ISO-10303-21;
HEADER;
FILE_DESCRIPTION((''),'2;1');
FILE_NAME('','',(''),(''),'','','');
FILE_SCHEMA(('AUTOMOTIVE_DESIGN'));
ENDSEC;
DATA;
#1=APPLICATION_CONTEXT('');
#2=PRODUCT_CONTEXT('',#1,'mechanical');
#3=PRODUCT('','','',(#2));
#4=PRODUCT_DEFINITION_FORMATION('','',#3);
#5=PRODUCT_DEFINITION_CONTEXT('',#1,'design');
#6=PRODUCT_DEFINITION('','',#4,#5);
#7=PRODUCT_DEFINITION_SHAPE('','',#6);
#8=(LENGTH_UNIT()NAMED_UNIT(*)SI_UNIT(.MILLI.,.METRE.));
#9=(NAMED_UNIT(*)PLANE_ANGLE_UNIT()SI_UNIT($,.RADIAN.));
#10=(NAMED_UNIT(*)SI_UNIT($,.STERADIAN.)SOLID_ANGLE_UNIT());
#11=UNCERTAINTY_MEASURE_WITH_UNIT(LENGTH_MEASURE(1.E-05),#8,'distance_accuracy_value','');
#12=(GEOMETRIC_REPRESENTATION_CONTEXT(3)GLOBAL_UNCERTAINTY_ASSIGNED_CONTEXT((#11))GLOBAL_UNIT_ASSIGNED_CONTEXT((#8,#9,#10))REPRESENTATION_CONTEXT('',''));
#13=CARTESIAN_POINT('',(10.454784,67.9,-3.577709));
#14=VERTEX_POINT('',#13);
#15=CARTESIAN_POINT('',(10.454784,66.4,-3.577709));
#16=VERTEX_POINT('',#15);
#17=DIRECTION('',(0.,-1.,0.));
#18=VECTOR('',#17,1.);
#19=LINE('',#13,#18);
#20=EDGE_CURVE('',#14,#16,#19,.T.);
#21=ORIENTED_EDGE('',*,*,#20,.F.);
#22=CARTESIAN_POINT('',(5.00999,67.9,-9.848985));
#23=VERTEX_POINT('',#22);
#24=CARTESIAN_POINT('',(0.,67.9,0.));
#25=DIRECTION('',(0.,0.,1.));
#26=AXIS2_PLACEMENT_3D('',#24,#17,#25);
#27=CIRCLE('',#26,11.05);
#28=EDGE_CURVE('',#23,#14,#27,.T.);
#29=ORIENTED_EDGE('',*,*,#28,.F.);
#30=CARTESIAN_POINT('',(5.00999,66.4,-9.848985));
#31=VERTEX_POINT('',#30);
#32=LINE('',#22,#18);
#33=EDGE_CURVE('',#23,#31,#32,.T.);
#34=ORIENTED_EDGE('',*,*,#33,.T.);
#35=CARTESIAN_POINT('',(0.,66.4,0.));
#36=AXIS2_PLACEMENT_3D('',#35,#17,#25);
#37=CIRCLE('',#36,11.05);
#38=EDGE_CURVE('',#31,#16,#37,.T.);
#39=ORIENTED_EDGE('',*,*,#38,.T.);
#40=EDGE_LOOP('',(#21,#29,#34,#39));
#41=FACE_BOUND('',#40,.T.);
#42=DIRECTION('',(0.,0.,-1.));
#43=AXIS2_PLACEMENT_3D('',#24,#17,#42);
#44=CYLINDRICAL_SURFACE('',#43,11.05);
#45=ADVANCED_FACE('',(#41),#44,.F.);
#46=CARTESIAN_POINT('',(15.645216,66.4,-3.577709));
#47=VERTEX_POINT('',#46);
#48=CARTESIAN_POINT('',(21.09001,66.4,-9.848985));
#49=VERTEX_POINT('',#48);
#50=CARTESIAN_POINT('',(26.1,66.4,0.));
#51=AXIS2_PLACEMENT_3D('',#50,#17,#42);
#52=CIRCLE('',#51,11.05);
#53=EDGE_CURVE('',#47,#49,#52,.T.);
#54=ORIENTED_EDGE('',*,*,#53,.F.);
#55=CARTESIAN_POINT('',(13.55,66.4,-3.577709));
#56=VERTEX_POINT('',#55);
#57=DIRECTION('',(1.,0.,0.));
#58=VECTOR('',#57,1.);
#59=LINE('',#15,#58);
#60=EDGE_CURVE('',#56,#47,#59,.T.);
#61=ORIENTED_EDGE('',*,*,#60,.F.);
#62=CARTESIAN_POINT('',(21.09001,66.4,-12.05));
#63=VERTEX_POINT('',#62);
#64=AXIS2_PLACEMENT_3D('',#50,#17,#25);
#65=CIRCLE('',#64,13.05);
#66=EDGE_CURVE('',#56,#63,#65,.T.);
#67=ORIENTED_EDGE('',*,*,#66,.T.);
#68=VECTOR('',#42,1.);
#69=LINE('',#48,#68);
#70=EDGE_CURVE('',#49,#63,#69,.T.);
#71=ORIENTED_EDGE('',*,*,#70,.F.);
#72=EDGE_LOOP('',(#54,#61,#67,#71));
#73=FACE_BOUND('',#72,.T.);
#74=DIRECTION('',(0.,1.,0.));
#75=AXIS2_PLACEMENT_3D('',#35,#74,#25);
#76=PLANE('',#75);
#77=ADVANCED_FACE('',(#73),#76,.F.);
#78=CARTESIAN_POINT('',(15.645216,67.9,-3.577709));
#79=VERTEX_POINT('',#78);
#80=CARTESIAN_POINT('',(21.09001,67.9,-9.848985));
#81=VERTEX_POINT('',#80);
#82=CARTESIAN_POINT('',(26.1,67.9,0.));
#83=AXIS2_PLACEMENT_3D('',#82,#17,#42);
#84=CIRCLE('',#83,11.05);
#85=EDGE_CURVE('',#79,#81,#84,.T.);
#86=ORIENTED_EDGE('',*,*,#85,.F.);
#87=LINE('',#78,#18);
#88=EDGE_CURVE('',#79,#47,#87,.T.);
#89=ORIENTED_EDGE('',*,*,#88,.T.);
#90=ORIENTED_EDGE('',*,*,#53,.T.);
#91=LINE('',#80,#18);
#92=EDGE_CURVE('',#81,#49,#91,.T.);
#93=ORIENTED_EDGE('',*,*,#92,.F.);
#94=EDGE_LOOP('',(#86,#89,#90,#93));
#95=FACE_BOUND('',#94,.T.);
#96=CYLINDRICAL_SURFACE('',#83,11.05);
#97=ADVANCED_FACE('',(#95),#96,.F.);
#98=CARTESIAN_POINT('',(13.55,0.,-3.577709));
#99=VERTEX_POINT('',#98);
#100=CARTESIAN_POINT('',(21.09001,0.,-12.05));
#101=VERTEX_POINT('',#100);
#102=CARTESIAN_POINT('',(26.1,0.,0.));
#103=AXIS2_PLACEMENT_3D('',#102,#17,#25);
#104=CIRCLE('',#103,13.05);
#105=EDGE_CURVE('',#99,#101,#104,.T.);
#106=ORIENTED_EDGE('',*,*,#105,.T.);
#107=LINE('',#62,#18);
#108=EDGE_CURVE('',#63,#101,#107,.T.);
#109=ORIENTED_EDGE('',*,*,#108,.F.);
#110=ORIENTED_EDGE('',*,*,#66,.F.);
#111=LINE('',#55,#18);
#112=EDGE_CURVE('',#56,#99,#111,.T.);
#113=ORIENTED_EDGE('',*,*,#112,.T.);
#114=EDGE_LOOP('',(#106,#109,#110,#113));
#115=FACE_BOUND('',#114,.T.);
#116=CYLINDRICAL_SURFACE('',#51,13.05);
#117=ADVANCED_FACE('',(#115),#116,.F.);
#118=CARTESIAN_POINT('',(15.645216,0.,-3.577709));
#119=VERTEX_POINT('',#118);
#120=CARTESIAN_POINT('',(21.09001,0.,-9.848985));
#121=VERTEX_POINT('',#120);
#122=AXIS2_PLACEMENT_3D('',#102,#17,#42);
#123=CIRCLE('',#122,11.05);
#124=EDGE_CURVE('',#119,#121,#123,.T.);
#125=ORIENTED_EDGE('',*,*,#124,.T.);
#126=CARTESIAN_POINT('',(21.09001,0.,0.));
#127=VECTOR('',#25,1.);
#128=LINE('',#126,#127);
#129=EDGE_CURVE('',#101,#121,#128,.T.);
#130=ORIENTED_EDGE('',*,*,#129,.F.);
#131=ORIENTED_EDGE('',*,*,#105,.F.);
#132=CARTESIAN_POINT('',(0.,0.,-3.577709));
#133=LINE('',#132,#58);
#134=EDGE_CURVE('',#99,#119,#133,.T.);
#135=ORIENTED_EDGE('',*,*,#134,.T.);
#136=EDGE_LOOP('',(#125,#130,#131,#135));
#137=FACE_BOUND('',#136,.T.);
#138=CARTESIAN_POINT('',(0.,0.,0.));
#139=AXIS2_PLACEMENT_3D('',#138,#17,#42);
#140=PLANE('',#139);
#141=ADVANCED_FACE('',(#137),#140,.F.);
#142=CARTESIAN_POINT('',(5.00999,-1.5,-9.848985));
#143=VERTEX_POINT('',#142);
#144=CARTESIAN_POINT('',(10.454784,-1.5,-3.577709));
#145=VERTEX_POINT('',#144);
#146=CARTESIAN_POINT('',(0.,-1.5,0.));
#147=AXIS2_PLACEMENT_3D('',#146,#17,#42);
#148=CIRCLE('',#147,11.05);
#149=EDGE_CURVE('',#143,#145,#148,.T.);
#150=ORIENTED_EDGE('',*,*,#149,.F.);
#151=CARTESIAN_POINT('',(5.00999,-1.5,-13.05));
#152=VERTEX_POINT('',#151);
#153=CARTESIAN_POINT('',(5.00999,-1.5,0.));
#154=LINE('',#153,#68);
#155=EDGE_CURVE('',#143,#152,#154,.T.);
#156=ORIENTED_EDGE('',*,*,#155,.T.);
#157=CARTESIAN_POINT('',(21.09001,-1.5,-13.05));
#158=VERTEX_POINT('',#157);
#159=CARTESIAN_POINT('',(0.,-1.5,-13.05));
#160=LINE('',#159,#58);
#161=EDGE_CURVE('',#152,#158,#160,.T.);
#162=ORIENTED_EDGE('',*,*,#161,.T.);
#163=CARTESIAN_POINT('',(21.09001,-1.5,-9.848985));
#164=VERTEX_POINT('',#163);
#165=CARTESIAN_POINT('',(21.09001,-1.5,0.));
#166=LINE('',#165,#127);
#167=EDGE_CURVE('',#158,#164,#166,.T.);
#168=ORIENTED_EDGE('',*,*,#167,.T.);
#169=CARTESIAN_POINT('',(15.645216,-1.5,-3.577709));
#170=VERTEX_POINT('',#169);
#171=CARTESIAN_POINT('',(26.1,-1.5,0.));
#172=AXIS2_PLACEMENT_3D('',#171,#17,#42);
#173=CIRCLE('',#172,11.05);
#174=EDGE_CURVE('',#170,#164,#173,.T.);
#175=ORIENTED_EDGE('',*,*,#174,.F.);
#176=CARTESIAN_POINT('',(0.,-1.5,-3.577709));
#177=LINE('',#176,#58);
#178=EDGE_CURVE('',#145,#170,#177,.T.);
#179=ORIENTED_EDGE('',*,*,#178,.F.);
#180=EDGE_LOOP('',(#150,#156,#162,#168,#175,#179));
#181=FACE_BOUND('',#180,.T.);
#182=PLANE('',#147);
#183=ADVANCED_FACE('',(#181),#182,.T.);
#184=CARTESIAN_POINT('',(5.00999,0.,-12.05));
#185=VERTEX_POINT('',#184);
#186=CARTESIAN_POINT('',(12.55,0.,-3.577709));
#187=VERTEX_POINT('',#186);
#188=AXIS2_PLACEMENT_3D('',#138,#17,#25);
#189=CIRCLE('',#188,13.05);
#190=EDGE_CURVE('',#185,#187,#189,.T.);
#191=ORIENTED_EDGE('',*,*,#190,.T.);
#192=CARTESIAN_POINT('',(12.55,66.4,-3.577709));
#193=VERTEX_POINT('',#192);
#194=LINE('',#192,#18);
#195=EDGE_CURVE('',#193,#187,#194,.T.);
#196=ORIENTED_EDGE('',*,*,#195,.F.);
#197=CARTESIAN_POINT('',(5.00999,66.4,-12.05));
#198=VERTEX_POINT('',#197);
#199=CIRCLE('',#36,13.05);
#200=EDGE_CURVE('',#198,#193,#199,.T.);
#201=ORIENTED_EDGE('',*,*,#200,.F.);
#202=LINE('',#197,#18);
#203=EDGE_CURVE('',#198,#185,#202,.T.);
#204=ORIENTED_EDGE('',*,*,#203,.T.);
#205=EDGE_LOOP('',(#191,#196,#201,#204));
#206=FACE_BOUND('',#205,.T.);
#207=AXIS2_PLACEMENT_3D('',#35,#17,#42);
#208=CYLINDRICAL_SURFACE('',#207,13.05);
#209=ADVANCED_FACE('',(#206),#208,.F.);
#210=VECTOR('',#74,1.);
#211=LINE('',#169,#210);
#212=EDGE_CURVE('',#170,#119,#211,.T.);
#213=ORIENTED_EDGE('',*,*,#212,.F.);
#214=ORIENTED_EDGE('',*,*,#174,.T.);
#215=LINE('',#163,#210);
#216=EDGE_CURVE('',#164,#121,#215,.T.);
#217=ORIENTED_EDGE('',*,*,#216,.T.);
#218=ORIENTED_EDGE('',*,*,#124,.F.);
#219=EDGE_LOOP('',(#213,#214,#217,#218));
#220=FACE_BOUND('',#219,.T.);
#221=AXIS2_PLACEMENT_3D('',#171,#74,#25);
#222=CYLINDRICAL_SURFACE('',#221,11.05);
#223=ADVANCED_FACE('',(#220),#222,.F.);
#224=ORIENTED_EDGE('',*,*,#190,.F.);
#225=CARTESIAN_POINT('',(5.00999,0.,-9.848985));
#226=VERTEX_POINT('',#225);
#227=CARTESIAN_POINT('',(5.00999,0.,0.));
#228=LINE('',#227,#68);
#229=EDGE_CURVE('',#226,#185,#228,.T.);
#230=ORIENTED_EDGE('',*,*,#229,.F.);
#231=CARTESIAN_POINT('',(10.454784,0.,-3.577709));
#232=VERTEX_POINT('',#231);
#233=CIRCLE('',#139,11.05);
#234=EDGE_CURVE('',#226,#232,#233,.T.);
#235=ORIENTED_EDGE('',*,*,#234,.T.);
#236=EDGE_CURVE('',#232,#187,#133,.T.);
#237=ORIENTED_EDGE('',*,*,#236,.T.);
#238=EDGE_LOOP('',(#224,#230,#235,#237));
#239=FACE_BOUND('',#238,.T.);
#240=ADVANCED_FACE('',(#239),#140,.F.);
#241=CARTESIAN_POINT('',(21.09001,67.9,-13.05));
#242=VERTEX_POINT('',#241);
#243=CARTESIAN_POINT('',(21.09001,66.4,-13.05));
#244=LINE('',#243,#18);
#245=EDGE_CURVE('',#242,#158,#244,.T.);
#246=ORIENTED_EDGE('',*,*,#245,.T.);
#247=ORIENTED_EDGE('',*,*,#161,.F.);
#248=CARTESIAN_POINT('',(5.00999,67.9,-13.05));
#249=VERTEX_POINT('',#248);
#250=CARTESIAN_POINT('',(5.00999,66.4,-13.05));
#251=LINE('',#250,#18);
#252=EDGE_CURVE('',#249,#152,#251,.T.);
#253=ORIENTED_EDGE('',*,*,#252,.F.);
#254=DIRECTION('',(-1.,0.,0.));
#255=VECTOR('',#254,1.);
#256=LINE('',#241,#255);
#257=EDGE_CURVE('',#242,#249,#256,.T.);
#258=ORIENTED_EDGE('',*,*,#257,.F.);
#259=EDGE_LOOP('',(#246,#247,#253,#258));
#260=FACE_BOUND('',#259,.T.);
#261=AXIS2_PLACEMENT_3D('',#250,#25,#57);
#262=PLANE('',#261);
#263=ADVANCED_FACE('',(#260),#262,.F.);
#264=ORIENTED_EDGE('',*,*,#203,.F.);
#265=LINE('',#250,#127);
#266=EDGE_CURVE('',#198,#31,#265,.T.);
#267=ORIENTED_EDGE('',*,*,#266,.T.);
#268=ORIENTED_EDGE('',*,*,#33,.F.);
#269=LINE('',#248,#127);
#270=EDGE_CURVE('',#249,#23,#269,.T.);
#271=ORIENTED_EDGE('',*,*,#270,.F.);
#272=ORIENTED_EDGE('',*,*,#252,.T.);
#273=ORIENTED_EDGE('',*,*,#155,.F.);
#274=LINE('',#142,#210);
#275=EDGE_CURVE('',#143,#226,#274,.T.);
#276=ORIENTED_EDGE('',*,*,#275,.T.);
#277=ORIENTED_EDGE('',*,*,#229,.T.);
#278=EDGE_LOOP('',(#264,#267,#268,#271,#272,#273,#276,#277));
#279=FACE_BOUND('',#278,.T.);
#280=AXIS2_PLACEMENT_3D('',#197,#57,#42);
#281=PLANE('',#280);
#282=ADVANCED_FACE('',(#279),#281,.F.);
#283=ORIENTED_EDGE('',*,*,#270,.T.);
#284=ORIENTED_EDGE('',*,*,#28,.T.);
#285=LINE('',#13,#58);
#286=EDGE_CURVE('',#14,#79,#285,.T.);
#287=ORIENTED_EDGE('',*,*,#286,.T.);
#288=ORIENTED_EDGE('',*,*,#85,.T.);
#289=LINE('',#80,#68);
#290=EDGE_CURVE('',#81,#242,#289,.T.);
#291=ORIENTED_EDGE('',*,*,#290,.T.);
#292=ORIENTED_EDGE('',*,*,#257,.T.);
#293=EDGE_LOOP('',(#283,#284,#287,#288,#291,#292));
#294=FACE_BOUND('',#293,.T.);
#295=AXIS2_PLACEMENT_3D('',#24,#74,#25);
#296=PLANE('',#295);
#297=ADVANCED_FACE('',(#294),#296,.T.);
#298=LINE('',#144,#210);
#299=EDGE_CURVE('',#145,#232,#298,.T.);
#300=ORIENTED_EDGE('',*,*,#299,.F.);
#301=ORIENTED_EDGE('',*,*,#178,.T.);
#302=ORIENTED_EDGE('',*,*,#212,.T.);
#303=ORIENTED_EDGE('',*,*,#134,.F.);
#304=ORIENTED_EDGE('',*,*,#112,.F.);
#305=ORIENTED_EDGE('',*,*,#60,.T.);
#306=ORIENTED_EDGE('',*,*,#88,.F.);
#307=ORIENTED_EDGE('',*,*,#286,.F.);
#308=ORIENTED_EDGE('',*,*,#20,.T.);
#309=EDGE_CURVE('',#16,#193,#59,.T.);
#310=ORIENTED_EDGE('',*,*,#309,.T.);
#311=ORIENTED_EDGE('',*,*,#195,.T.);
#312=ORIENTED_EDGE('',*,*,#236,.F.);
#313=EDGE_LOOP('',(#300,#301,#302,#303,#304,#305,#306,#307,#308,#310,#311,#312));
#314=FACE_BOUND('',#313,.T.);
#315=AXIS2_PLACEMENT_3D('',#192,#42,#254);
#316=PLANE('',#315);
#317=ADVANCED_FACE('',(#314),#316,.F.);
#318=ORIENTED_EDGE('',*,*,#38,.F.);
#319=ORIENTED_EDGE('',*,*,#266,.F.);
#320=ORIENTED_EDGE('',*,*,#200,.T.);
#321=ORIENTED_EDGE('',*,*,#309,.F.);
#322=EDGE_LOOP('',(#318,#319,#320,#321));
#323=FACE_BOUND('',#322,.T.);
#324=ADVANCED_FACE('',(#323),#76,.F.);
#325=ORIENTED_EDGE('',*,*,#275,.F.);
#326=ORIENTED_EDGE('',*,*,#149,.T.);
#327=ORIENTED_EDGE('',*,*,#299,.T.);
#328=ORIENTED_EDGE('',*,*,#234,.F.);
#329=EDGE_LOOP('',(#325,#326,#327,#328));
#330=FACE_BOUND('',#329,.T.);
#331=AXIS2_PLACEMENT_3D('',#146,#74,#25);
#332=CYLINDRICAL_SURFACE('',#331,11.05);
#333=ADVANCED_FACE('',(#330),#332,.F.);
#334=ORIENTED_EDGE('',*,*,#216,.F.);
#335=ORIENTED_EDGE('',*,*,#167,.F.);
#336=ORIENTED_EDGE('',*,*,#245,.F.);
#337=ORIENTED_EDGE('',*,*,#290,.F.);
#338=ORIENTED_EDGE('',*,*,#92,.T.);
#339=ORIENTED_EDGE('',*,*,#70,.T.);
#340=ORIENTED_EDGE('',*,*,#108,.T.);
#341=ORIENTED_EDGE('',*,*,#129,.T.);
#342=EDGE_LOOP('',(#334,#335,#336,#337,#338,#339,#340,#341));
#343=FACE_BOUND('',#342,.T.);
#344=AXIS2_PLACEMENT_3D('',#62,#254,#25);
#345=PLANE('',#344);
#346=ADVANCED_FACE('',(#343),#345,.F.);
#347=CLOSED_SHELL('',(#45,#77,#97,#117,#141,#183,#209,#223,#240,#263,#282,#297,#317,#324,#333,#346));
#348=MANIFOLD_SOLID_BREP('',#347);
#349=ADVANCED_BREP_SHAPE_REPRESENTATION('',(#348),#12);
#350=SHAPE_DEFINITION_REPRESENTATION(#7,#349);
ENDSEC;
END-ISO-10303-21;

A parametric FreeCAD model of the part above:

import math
import FreeCAD as App
import Part
import Sketcher

V = App.Vector

doc = App.newDocument("Part")
body = doc.addObject("PartDesign::Body", "Body")

# Sketch on XZ plane
sketch1 = body.newObject("Sketcher::SketchObject", "Sketch")
sketch1.AttachmentSupport = (doc.getObject("XZ_Plane"), [""])
sketch1.MapMode = "FlatFace"
sketch1.addGeometry(Part.LineSegment(V(12.6, -3.6, 0), V(13.6, -3.6, 0)), False)
sketch1.addGeometry(Part.ArcOfCircle(Part.Circle(V(26.1, 0, 0), V(0, 0, 1), 13.1), math.radians(-164), math.radians(-113)), False)
sketch1.addGeometry(Part.LineSegment(V(21.1, -12.1, 0), V(21.1, -13.1, 0)), False)
sketch1.addGeometry(Part.LineSegment(V(21.1, -13.1, 0), V(5, -13.1, 0)), False)
sketch1.addGeometry(Part.LineSegment(V(5, -13.1, 0), V(5, -12.1, 0)), False)
sketch1.addGeometry(Part.ArcOfCircle(Part.Circle(V(0, 0, 0), V(0, 0, 1), 13.1), math.radians(-67), math.radians(-16)), False)
sketch1.addConstraint(Sketcher.Constraint("Coincident", 0, 2, 1, 1))
sketch1.addConstraint(Sketcher.Constraint("Coincident", 1, 2, 2, 1))
sketch1.addConstraint(Sketcher.Constraint("Coincident", 2, 2, 3, 1))
sketch1.addConstraint(Sketcher.Constraint("Coincident", 3, 2, 4, 1))
sketch1.addConstraint(Sketcher.Constraint("Coincident", 4, 2, 5, 1))
sketch1.addConstraint(Sketcher.Constraint("Coincident", 5, 2, 0, 1))
sketch1.addConstraint(Sketcher.Constraint("Horizontal", 0))
sketch1.addConstraint(Sketcher.Constraint("Vertical", 2))
sketch1.addConstraint(Sketcher.Constraint("Horizontal", 3))
sketch1.addConstraint(Sketcher.Constraint("Vertical", 4))
sketch1.addConstraint(Sketcher.Constraint("Coincident", 5, 3, -1, 1))
sketch1.addConstraint(Sketcher.Constraint("Equal", 1, 5))
sketch1.addConstraint(Sketcher.Constraint("PointOnObject", 1, 3, -1))
sketch1.addConstraint(Sketcher.Constraint("Horizontal", 1, 2, 4, 2))
sketch1.addConstraint(Sketcher.Constraint("Equal", 0, 2))
sketch1.addConstraint(Sketcher.Constraint("DistanceX", 0, 1, 0, 2, 1.0))
sketch1.addConstraint(Sketcher.Constraint("Radius", 1, 13.05))
sketch1.addConstraint(Sketcher.Constraint("DistanceX", -1, 1, 1, 3, 26.1))
sketch1.addConstraint(Sketcher.Constraint("DistanceY", 1, 2, -1, 1, 12.05))
pad1 = body.newObject("PartDesign::Pad", "Pad")
pad1.Profile = sketch1
pad1.Length = 66.4
pad1.Reversed = True

# Sketch on XZ plane
sketch2 = body.newObject("Sketcher::SketchObject", "Sketch001")
sketch2.AttachmentSupport = (doc.getObject("XZ_Plane"), [""])
sketch2.MapMode = "FlatFace"
sketch2.AttachmentOffset = App.Placement(V(0, 0, -66.4), App.Rotation())
sketch2.addGeometry(Part.LineSegment(V(5, -13.1, 0), V(5, -9.8, 0)), False)
sketch2.addGeometry(Part.ArcOfCircle(Part.Circle(V(0, 0, 0), V(0, 0, 1), 11), math.radians(-63), math.radians(-19)), False)
sketch2.addGeometry(Part.LineSegment(V(10.5, -3.6, 0), V(15.6, -3.6, 0)), False)
sketch2.addGeometry(Part.ArcOfCircle(Part.Circle(V(26.1, 0, 0), V(0, 0, 1), 11), math.radians(-161), math.radians(-117)), False)
sketch2.addGeometry(Part.LineSegment(V(21.1, -9.8, 0), V(21.1, -13.1, 0)), False)
sketch2.addGeometry(Part.LineSegment(V(21.1, -13.1, 0), V(5, -13.1, 0)), False)
sketch2.addConstraint(Sketcher.Constraint("Coincident", 0, 2, 1, 1))
sketch2.addConstraint(Sketcher.Constraint("Coincident", 1, 2, 2, 1))
sketch2.addConstraint(Sketcher.Constraint("Coincident", 2, 2, 3, 1))
sketch2.addConstraint(Sketcher.Constraint("Coincident", 3, 2, 4, 1))
sketch2.addConstraint(Sketcher.Constraint("Coincident", 4, 2, 5, 1))
sketch2.addConstraint(Sketcher.Constraint("Coincident", 5, 2, 0, 1))
sketch2.addConstraint(Sketcher.Constraint("Vertical", 0))
sketch2.addConstraint(Sketcher.Constraint("Horizontal", 2))
sketch2.addConstraint(Sketcher.Constraint("Vertical", 4))
sketch2.addConstraint(Sketcher.Constraint("Horizontal", 5))
sketch2.addConstraint(Sketcher.Constraint("Coincident", 1, 3, -1, 1))
sketch2.addConstraint(Sketcher.Constraint("Equal", 1, 3))
sketch2.addConstraint(Sketcher.Constraint("PointOnObject", 3, 3, -1))
sketch2.addConstraint(Sketcher.Constraint("Horizontal", 0, 2, 3, 2))
sketch2.addConstraint(Sketcher.Constraint("Radius", 1, 11.05))
sketch2.addConstraint(Sketcher.Constraint("DistanceX", -1, 1, 3, 3, 26.1))
sketch2.addConstraint(Sketcher.Constraint("DistanceY", 4, 2, -1, 1, 13.05))
sketch2.addConstraint(Sketcher.Constraint("DistanceX", 5, 2, 5, 1, 16.08002))
sketch2.addConstraint(Sketcher.Constraint("DistanceX", 2, 1, 2, 2, 5.190433))
pad2 = body.newObject("PartDesign::Pad", "Pad001")
pad2.Profile = sketch2
pad2.Length = 1.5
pad2.Reversed = True

# Sketch on XZ plane
sketch3 = body.newObject("Sketcher::SketchObject", "Sketch002")
sketch3.AttachmentSupport = (doc.getObject("XZ_Plane"), [""])
sketch3.MapMode = "FlatFace"
sketch3.AttachmentOffset = App.Placement(V(0, 0, 1.5), App.Rotation())
sketch3.addGeometry(Part.ArcOfCircle(Part.Circle(V(0, 0, 0), V(0, 0, 1), 11), math.radians(-63), math.radians(-19)), False)
sketch3.addGeometry(Part.LineSegment(V(5, -9.8, 0), V(5, -13.1, 0)), False)
sketch3.addGeometry(Part.LineSegment(V(5, -13.1, 0), V(21.1, -13.1, 0)), False)
sketch3.addGeometry(Part.LineSegment(V(21.1, -13.1, 0), V(21.1, -9.8, 0)), False)
sketch3.addGeometry(Part.ArcOfCircle(Part.Circle(V(26.1, 0, 0), V(0, 0, 1), 11), math.radians(-161), math.radians(-117)), False)
sketch3.addGeometry(Part.LineSegment(V(15.6, -3.6, 0), V(10.5, -3.6, 0)), False)
sketch3.addConstraint(Sketcher.Constraint("Coincident", 0, 1, 1, 1))
sketch3.addConstraint(Sketcher.Constraint("Coincident", 1, 2, 2, 1))
sketch3.addConstraint(Sketcher.Constraint("Coincident", 2, 2, 3, 1))
sketch3.addConstraint(Sketcher.Constraint("Coincident", 3, 2, 4, 2))
sketch3.addConstraint(Sketcher.Constraint("Coincident", 4, 1, 5, 1))
sketch3.addConstraint(Sketcher.Constraint("Coincident", 5, 2, 0, 2))
sketch3.addConstraint(Sketcher.Constraint("Vertical", 1))
sketch3.addConstraint(Sketcher.Constraint("Horizontal", 2))
sketch3.addConstraint(Sketcher.Constraint("Vertical", 3))
sketch3.addConstraint(Sketcher.Constraint("Horizontal", 5))
sketch3.addConstraint(Sketcher.Constraint("Coincident", 0, 3, -1, 1))
sketch3.addConstraint(Sketcher.Constraint("Equal", 0, 4))
sketch3.addConstraint(Sketcher.Constraint("PointOnObject", 4, 3, -1))
sketch3.addConstraint(Sketcher.Constraint("Horizontal", 0, 1, 3, 2))
sketch3.addConstraint(Sketcher.Constraint("Radius", 0, 11.05))
sketch3.addConstraint(Sketcher.Constraint("DistanceX", -1, 1, 4, 3, 26.1))
sketch3.addConstraint(Sketcher.Constraint("DistanceY", 1, 2, -1, 1, 13.05))
sketch3.addConstraint(Sketcher.Constraint("DistanceX", 2, 1, 2, 2, 16.08002))
sketch3.addConstraint(Sketcher.Constraint("DistanceX", 5, 2, 5, 1, 5.190433))
pad3 = body.newObject("PartDesign::Pad", "Pad002")
pad3.Profile = sketch3
pad3.Length = 1.5
pad3.Reversed = True

doc.recompute()
